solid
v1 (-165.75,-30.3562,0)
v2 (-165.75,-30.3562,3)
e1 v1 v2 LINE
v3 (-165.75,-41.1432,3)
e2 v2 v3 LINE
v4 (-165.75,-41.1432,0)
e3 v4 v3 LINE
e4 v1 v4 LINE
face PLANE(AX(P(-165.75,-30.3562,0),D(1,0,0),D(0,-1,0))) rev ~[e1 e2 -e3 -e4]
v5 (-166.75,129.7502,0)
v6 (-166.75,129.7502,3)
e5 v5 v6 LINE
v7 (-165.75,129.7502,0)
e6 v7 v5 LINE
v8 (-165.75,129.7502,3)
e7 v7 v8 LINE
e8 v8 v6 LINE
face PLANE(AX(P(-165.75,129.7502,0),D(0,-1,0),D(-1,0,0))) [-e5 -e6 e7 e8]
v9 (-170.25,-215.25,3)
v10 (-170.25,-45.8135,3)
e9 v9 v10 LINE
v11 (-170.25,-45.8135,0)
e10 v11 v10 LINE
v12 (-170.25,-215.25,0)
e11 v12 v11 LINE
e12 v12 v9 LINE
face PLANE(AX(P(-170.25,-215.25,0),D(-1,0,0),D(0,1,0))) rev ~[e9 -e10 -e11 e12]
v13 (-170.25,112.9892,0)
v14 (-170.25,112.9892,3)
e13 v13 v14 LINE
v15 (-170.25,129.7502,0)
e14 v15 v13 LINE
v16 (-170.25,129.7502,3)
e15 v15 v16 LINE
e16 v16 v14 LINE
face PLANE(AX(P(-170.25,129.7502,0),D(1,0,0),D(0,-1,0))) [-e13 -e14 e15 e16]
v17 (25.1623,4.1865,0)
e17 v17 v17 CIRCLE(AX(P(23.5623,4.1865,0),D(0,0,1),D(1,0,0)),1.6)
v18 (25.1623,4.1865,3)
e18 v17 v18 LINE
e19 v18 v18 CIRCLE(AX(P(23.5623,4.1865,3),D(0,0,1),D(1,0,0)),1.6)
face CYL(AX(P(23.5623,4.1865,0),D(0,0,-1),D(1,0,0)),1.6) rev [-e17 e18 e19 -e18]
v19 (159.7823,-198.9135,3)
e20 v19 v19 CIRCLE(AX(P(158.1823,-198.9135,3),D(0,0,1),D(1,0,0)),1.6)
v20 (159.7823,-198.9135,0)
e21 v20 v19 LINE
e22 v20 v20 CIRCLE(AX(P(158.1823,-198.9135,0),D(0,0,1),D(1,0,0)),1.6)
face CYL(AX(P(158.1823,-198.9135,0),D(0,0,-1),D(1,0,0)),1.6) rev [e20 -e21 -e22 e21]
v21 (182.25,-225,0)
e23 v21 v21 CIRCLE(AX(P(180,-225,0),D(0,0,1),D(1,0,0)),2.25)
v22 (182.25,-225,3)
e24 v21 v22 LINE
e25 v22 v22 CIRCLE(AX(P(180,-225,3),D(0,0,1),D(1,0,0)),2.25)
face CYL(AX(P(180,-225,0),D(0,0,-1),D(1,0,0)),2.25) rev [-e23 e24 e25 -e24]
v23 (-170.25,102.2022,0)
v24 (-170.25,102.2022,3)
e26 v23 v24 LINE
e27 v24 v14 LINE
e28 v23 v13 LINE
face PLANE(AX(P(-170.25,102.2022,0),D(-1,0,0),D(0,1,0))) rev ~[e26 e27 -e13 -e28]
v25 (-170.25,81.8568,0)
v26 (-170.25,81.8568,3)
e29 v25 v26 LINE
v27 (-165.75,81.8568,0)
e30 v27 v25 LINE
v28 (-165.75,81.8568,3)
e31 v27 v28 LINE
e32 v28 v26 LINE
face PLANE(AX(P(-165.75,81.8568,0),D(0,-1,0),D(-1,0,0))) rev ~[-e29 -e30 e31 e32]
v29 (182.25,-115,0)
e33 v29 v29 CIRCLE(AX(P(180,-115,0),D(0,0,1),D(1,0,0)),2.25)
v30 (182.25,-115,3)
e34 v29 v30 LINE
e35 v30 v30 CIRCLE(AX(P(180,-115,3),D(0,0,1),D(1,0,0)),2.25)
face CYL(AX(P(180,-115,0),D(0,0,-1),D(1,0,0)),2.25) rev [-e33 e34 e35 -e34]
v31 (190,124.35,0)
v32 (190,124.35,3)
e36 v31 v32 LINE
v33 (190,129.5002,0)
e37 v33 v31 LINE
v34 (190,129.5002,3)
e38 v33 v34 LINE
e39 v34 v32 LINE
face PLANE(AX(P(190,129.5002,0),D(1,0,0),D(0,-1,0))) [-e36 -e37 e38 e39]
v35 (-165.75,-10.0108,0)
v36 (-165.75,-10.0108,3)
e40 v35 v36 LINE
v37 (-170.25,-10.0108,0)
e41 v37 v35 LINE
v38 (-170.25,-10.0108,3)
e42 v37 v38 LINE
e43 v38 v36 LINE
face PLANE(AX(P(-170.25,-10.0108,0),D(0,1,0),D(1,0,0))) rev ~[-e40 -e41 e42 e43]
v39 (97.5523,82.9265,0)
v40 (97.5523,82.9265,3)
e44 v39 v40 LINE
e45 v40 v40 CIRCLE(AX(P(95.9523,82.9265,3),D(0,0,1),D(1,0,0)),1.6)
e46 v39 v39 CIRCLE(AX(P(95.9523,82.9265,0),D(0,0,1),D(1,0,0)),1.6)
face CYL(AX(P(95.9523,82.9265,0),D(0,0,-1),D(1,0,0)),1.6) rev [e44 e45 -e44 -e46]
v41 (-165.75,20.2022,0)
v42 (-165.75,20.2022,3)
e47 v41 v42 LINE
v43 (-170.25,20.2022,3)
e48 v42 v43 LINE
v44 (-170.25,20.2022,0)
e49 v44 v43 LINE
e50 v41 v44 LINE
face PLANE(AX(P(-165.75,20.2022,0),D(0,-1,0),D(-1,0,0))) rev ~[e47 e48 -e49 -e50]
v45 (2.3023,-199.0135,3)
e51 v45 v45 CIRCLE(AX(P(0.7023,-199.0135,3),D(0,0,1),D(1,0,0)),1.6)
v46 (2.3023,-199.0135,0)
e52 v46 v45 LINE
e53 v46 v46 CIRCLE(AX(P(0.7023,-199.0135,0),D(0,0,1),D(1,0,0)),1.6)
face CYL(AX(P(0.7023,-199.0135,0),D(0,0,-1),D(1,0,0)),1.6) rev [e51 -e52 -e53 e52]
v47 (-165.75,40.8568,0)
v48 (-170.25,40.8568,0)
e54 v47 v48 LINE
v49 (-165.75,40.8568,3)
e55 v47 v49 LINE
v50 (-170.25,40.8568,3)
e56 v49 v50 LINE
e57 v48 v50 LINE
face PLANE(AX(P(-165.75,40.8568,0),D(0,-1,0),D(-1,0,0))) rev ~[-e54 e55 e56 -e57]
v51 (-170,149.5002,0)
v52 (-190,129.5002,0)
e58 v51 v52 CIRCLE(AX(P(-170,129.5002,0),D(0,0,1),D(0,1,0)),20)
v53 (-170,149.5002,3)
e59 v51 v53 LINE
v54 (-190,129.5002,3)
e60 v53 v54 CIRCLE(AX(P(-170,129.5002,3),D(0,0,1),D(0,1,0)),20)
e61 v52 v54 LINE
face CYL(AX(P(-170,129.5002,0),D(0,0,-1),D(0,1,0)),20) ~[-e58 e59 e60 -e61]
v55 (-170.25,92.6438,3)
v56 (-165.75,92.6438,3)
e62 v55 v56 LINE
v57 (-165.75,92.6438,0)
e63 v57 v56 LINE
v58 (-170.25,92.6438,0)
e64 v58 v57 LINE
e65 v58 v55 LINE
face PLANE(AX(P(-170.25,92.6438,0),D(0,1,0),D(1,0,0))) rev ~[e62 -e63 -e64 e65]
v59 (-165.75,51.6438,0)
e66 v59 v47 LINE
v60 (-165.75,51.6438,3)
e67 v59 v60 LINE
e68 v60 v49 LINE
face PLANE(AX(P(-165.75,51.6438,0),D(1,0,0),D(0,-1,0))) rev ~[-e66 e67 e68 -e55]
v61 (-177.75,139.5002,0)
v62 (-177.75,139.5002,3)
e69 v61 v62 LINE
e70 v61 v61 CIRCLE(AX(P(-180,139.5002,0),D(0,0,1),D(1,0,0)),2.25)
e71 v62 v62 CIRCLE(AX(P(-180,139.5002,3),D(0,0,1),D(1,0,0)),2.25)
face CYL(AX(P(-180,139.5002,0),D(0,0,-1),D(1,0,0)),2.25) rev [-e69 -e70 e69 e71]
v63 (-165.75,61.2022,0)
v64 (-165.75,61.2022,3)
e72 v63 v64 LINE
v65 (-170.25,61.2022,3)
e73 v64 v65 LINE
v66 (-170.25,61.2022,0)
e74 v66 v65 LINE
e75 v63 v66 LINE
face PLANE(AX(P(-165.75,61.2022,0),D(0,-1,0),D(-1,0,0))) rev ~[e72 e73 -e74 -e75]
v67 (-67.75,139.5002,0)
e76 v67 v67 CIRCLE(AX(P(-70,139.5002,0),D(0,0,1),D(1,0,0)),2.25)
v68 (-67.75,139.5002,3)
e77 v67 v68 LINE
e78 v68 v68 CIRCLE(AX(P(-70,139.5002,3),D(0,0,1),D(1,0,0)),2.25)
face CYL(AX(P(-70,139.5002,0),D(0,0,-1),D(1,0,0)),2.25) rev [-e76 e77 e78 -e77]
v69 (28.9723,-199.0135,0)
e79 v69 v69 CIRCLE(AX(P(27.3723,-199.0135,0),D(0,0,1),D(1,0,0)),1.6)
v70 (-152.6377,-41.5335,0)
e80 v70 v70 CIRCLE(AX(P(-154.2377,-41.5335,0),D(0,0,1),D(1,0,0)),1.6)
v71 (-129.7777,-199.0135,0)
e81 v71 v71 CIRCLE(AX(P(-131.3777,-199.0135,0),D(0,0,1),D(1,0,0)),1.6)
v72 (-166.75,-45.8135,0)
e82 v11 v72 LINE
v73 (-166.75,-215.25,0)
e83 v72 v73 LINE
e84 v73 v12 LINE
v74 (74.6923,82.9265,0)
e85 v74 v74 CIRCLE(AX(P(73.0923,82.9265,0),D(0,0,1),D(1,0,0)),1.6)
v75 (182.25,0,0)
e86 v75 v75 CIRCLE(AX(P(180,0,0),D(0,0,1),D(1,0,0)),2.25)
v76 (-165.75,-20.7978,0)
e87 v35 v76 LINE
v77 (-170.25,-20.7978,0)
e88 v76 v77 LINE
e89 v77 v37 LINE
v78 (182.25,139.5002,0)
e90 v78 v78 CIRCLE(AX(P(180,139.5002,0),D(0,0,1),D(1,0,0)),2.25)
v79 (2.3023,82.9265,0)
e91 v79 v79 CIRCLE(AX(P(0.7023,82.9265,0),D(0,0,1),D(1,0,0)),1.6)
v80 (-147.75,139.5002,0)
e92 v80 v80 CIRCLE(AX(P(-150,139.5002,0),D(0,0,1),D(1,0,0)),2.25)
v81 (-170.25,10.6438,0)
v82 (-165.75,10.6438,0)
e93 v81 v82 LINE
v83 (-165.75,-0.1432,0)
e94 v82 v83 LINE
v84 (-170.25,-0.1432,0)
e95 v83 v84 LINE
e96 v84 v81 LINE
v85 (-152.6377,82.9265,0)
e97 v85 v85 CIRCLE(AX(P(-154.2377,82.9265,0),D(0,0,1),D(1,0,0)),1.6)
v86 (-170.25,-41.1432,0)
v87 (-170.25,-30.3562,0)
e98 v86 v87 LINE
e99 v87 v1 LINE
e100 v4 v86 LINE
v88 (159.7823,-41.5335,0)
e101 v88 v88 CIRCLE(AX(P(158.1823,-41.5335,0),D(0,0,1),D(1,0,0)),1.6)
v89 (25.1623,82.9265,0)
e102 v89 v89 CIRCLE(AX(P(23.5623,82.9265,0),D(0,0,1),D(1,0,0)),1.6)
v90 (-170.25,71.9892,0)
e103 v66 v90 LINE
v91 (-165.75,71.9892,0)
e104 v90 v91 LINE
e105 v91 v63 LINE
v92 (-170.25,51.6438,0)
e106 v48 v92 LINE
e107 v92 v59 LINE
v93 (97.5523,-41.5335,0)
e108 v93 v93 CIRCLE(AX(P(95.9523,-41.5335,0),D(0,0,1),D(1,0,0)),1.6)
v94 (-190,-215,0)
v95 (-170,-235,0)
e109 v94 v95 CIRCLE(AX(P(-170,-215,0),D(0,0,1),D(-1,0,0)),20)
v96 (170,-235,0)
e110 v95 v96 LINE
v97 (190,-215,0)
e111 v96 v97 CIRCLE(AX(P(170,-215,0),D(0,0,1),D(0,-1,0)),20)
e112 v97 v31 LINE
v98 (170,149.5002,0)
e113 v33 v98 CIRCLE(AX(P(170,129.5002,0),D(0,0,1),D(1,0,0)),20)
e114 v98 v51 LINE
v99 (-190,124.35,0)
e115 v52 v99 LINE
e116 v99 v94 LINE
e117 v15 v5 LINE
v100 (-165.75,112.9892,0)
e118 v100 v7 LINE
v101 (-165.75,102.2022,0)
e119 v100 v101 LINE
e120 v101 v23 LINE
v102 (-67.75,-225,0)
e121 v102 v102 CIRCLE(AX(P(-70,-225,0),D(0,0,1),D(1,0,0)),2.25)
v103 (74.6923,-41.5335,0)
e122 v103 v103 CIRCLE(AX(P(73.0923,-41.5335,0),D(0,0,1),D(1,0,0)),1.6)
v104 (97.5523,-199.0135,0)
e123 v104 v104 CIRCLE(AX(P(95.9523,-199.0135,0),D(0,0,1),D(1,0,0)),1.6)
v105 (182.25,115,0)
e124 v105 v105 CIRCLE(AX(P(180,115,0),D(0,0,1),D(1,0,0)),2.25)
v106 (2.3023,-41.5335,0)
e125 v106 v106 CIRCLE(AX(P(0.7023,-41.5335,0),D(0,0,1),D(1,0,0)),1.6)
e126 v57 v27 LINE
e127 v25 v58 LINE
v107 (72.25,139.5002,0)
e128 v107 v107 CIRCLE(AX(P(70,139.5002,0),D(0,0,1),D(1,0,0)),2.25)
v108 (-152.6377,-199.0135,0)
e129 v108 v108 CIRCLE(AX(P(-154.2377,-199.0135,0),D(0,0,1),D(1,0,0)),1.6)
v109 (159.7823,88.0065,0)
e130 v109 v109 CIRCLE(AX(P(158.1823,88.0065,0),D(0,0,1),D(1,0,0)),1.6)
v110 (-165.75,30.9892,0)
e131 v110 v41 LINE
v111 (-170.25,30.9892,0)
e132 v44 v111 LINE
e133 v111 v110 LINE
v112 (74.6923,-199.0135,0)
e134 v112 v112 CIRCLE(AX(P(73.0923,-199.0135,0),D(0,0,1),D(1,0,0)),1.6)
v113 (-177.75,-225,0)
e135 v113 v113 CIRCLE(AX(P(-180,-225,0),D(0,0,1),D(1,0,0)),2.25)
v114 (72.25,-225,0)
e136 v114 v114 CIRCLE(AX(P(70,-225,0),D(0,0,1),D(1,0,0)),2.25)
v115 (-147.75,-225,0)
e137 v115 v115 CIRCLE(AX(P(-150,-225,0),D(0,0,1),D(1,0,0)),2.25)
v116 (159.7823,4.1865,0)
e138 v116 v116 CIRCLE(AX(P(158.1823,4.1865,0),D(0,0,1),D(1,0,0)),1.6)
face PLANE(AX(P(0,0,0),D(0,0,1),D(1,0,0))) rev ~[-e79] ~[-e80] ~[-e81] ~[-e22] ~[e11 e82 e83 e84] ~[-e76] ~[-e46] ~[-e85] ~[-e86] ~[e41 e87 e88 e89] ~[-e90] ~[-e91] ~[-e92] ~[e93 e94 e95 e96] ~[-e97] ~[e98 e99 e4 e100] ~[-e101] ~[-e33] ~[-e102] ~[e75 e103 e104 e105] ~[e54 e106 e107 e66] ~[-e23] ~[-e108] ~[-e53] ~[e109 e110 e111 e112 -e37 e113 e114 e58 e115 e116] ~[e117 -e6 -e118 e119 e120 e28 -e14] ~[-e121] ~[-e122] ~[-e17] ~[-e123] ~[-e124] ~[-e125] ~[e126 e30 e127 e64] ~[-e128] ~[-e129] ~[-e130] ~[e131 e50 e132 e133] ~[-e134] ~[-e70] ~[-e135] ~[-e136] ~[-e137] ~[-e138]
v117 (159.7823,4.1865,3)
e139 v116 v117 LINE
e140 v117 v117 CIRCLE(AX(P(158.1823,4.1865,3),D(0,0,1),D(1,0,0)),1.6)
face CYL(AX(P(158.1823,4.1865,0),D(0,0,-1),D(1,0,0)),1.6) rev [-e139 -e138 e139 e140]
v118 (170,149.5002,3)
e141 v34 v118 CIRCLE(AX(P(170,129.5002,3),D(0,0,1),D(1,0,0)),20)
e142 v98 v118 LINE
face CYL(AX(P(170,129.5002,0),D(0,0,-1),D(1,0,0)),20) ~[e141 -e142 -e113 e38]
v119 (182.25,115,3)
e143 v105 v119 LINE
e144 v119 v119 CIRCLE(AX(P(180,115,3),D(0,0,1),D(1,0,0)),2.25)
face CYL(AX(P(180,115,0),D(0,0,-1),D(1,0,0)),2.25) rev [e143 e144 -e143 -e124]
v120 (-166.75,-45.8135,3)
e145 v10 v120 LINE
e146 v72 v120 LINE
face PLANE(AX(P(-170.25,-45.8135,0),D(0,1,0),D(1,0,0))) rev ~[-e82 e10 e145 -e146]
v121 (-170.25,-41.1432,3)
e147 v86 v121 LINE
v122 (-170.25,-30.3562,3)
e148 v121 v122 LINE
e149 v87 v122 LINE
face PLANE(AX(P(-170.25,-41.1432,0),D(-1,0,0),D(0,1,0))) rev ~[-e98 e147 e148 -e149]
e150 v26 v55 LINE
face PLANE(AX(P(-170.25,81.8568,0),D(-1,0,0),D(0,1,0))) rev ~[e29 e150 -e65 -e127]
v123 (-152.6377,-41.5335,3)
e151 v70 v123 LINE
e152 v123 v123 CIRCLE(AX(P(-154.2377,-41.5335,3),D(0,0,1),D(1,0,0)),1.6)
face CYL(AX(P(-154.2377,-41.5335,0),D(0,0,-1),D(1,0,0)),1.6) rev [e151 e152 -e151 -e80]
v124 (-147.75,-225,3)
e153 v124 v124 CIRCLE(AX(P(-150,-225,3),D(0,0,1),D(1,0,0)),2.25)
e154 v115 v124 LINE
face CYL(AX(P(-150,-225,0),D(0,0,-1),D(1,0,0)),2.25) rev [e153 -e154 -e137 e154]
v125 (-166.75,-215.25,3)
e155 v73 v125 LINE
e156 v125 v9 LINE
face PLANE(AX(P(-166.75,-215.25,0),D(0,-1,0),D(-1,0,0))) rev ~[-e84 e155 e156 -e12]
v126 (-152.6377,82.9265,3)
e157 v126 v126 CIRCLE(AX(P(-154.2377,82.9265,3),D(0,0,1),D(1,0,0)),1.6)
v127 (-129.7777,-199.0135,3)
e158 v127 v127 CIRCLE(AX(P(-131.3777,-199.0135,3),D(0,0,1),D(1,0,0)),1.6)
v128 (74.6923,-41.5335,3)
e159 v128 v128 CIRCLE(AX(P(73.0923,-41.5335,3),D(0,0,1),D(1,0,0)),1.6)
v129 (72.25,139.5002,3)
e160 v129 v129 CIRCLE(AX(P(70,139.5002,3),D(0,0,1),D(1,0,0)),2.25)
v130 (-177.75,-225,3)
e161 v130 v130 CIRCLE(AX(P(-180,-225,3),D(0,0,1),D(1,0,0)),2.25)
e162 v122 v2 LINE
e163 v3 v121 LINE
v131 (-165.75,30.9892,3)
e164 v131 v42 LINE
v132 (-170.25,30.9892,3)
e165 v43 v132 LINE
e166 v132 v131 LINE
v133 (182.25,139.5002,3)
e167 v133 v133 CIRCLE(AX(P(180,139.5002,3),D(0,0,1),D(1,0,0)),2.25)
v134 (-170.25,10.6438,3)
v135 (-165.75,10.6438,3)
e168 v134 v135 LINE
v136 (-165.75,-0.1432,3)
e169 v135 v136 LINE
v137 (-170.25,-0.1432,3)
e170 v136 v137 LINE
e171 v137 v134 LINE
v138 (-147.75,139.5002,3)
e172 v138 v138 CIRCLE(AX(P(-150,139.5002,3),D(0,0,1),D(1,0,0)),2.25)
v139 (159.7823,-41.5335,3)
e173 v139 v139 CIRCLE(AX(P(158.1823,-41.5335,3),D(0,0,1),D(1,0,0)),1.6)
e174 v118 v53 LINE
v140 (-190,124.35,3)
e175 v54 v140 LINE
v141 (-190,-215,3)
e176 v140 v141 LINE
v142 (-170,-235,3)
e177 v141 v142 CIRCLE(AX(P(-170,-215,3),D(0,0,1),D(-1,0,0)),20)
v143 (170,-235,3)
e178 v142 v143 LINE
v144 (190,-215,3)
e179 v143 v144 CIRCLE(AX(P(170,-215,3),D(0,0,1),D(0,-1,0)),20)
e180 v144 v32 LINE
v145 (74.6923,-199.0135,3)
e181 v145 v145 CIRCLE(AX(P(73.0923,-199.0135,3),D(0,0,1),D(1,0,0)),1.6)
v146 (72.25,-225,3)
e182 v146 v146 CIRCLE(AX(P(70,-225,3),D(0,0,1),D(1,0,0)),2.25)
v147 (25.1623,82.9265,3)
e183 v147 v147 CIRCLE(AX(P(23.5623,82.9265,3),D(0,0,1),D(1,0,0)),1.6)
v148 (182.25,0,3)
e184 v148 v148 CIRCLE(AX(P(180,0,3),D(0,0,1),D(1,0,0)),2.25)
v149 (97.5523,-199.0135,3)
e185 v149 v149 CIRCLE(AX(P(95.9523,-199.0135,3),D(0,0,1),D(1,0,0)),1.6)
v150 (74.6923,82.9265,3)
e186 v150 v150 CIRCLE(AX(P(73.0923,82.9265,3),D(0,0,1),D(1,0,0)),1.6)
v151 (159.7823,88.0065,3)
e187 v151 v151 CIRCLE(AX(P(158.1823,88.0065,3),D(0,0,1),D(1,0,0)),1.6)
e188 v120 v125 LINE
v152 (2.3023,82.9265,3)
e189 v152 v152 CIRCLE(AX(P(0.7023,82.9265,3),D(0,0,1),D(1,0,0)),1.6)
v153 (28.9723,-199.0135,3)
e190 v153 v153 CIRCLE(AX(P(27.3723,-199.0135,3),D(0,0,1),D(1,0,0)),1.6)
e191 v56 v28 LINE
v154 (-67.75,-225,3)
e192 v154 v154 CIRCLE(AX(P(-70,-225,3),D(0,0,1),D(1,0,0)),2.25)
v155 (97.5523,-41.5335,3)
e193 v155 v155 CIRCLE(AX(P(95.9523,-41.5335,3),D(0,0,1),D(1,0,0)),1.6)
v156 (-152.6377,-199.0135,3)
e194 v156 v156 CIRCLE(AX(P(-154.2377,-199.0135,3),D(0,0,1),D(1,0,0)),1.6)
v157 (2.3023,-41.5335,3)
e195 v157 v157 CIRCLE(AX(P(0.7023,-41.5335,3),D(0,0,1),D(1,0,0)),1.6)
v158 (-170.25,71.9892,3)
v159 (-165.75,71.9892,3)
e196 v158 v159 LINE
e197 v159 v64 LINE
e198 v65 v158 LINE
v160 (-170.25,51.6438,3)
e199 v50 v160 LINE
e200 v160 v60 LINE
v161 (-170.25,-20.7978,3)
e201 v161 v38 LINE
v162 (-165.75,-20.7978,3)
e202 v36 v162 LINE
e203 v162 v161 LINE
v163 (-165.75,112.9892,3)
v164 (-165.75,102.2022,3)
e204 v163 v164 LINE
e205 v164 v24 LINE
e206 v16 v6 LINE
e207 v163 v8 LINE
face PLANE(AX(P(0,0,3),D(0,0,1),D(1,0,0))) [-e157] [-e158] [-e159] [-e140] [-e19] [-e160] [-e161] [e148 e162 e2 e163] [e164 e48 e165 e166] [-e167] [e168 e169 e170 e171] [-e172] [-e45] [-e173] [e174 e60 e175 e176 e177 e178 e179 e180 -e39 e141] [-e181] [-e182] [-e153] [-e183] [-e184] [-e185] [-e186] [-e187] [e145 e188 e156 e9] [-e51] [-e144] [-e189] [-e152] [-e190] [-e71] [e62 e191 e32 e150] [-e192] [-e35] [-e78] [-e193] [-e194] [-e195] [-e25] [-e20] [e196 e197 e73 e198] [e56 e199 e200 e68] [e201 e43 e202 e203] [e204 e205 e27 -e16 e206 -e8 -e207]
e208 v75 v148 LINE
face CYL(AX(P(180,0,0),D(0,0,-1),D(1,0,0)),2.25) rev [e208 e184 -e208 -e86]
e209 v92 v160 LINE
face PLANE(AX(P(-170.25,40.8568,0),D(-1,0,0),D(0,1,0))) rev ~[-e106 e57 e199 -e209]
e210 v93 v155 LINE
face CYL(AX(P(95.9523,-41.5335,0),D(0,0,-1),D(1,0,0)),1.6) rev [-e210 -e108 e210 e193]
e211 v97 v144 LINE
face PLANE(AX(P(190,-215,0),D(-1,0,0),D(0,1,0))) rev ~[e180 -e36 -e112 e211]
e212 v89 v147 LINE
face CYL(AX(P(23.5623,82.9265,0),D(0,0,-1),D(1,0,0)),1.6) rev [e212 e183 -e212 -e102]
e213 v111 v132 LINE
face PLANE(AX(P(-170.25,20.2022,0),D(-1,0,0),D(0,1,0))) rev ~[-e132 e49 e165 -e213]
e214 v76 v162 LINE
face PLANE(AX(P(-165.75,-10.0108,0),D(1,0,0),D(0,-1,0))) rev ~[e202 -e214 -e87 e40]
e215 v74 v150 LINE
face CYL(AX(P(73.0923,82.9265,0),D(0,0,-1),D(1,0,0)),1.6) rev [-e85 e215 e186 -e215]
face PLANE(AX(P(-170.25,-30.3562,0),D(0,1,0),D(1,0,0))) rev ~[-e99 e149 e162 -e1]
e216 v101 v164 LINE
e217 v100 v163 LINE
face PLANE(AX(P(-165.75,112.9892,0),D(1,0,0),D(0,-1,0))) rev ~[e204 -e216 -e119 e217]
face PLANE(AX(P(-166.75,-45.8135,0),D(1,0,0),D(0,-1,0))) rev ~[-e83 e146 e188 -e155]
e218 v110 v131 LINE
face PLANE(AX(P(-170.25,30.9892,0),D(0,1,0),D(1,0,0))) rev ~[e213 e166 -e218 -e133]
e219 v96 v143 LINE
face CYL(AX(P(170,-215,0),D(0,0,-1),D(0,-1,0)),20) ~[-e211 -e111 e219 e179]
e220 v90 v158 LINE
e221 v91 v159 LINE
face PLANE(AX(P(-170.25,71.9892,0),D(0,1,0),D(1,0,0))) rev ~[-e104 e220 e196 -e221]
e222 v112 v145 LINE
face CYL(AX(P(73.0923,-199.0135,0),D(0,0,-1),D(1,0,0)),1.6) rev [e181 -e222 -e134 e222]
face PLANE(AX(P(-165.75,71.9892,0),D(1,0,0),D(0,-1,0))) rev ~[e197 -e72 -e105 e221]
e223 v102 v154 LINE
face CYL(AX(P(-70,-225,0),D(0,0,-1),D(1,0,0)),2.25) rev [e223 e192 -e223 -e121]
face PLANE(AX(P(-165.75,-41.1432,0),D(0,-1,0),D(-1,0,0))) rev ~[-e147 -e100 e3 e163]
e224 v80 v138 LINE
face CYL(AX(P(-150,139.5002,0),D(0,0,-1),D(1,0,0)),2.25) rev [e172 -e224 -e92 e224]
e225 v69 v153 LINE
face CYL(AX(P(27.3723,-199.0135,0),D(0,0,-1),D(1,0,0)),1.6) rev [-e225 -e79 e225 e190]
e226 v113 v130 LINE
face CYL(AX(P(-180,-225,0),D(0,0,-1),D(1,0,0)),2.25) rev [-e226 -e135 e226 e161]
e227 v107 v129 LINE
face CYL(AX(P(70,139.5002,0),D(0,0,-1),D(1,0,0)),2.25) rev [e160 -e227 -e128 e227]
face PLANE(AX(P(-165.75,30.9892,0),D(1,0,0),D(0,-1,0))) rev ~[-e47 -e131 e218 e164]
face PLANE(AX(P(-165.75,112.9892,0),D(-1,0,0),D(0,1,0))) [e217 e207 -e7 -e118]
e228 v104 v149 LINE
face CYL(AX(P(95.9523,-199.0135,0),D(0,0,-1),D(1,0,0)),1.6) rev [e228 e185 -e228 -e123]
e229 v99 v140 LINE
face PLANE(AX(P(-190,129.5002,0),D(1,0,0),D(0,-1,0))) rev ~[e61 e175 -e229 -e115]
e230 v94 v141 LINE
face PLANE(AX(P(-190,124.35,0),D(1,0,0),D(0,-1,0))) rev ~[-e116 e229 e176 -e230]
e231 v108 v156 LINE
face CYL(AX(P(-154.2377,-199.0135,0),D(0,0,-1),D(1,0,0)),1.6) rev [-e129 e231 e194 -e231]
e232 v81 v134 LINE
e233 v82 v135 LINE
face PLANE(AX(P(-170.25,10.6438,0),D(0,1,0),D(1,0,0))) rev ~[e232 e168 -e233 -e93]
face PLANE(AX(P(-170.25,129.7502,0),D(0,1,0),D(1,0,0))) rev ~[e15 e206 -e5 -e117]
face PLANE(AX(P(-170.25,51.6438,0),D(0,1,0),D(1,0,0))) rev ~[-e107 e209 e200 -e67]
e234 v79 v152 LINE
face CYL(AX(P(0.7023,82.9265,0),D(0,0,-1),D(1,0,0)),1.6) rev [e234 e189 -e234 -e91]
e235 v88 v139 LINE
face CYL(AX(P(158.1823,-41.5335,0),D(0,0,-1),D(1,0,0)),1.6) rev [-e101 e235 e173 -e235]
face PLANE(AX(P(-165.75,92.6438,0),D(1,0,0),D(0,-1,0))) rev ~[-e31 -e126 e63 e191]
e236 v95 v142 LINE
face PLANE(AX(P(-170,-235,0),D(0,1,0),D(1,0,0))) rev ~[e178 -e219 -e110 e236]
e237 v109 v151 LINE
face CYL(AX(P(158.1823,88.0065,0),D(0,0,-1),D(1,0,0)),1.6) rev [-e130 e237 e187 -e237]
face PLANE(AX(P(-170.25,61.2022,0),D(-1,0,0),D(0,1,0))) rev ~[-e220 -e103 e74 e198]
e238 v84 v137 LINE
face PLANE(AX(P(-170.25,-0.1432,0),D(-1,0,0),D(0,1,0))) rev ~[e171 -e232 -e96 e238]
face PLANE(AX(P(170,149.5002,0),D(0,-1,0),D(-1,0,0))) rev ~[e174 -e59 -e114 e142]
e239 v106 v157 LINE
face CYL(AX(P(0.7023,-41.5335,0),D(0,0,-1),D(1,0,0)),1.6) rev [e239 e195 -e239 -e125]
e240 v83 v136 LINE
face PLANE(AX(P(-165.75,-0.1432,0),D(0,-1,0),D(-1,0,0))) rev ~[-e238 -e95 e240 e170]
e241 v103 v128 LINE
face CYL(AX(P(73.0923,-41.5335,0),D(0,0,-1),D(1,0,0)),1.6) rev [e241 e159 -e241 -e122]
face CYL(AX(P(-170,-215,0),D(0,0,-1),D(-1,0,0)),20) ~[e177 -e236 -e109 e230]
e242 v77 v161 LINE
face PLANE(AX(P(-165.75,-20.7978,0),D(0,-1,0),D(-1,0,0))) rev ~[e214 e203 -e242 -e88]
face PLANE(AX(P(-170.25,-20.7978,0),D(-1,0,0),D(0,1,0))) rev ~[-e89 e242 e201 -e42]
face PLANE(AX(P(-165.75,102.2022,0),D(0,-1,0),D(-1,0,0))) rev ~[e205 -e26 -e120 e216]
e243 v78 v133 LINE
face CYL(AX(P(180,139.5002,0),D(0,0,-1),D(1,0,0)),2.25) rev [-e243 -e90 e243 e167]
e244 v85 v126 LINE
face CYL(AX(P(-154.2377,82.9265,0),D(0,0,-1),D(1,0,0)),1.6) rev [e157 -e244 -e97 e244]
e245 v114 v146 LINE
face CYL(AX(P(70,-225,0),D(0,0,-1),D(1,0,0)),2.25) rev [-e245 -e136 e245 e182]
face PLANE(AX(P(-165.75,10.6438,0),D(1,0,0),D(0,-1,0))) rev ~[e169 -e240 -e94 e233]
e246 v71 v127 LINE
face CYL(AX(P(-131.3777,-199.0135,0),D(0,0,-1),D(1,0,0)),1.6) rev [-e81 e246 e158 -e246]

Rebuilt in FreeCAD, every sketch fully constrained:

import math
import FreeCAD as App
import Part
import Sketcher

doc = App.newDocument("Part")
params = doc.addObject("Spreadsheet::Sheet", "Params")
for row, (alias, value) in enumerate([
    ("sketch1_radius", "20 mm"),
    ("sketch1_diameter", "4.5 mm"),
    ("sketch1_diameter2", "3.2 mm"),
    ("sketch1_width", "340 mm"),
    ("sketch1_width2", "3.5 mm"),
    ("pad1_length", "3 mm"),
], start=1):
    params.set(f"A{row}", alias)
    params.set(f"B{row}", "=" + value)
    params.setAlias(f"B{row}", alias)

body = doc.addObject("PartDesign::Body", "Body")

sketch1 = doc.addObject("Sketcher::SketchObject", "Sketch")
body.addObject(sketch1)
sketch1.AttachmentSupport = (doc.XY_Plane, [""])
sketch1.MapMode = "FlatFace"
sketch1.addGeometry(Part.ArcOfCircle(Part.Circle(App.Vector(170, 129.5, 0), App.Vector(0, 0, 1), 20), math.radians(0), math.radians(90)), False)
sketch1.addGeometry(Part.LineSegment(App.Vector(170, 149.5, 0), App.Vector(-170, 149.5, 0)), False)
sketch1.addGeometry(Part.ArcOfCircle(Part.Circle(App.Vector(-170, 129.5, 0), App.Vector(0, 0, 1), 20), math.radians(90), math.radians(180)), False)
sketch1.addGeometry(Part.LineSegment(App.Vector(-190, 129.5, 0), App.Vector(-190, -215, 0)), False)
sketch1.addGeometry(Part.ArcOfCircle(Part.Circle(App.Vector(-170, -215, 0), App.Vector(0, 0, 1), 20), math.radians(180), math.radians(270)), False)
sketch1.addGeometry(Part.LineSegment(App.Vector(-170, -235, 0), App.Vector(170, -235, 0)), False)
sketch1.addGeometry(Part.ArcOfCircle(Part.Circle(App.Vector(170, -215, 0), App.Vector(0, 0, 1), 20), math.radians(-90), math.radians(0)), False)
sketch1.addGeometry(Part.LineSegment(App.Vector(190, -215, 0), App.Vector(190, 129.5, 0)), False)
sketch1.addGeometry(Part.Circle(App.Vector(-180, -225, 0), App.Vector(0, 0, 1), 2.2), False)
sketch1.addGeometry(Part.Circle(App.Vector(-150, -225, 0), App.Vector(0, 0, 1), 2.2), False)
sketch1.addGeometry(Part.Circle(App.Vector(-154.2, -199, 0), App.Vector(0, 0, 1), 1.6), False)
sketch1.addGeometry(Part.Circle(App.Vector(-131.4, -199, 0), App.Vector(0, 0, 1), 1.6), False)
sketch1.addGeometry(Part.Circle(App.Vector(-70, -225, 0), App.Vector(0, 0, 1), 2.2), False)
sketch1.addGeometry(Part.LineSegment(App.Vector(-166.8, -215.2, 0), App.Vector(-170.2, -215.2, 0)), False)
sketch1.addGeometry(Part.LineSegment(App.Vector(-170.2, -215.2, 0), App.Vector(-170.2, -45.8, 0)), False)
sketch1.addGeometry(Part.LineSegment(App.Vector(-170.2, -45.8, 0), App.Vector(-166.8, -45.8, 0)), False)
sketch1.addGeometry(Part.LineSegment(App.Vector(-166.8, -45.8, 0), App.Vector(-166.8, -215.2, 0)), False)
sketch1.addGeometry(Part.Circle(App.Vector(0.7, -199, 0), App.Vector(0, 0, 1), 1.6), False)
sketch1.addGeometry(Part.Circle(App.Vector(27.4, -199, 0), App.Vector(0, 0, 1), 1.6), False)
sketch1.addGeometry(Part.Circle(App.Vector(70, -225, 0), App.Vector(0, 0, 1), 2.2), False)
sketch1.addGeometry(Part.Circle(App.Vector(73.1, -199, 0), App.Vector(0, 0, 1), 1.6), False)
sketch1.addGeometry(Part.Circle(App.Vector(96, -199, 0), App.Vector(0, 0, 1), 1.6), False)
sketch1.addGeometry(Part.Circle(App.Vector(180, -225, 0), App.Vector(0, 0, 1), 2.2), False)
sketch1.addGeometry(Part.Circle(App.Vector(158.2, -198.9, 0), App.Vector(0, 0, 1), 1.6), False)
sketch1.addGeometry(Part.Circle(App.Vector(180, -115, 0), App.Vector(0, 0, 1), 2.2), False)
sketch1.addGeometry(Part.LineSegment(App.Vector(-170.2, -41.1, 0), App.Vector(-170.2, -30.4, 0)), False)
sketch1.addGeometry(Part.LineSegment(App.Vector(-170.2, -30.4, 0), App.Vector(-165.8, -30.4, 0)), False)
sketch1.addGeometry(Part.LineSegment(App.Vector(-165.8, -30.4, 0), App.Vector(-165.8, -41.1, 0)), False)
sketch1.addGeometry(Part.LineSegment(App.Vector(-165.8, -41.1, 0), App.Vector(-170.2, -41.1, 0)), False)
sketch1.addGeometry(Part.Circle(App.Vector(-154.2, -41.5, 0), App.Vector(0, 0, 1), 1.6), False)
sketch1.addGeometry(Part.LineSegment(App.Vector(-170.2, -20.8, 0), App.Vector(-170.2, -10, 0)), False)
sketch1.addGeometry(Part.LineSegment(App.Vector(-170.2, -10, 0), App.Vector(-165.8, -10, 0)), False)
sketch1.addGeometry(Part.LineSegment(App.Vector(-165.8, -10, 0), App.Vector(-165.8, -20.8, 0)), False)
sketch1.addGeometry(Part.LineSegment(App.Vector(-165.8, -20.8, 0), App.Vector(-170.2, -20.8, 0)), False)
sketch1.addGeometry(Part.LineSegment(App.Vector(-170.2, -0.1, 0), App.Vector(-170.2, 10.6, 0)), False)
sketch1.addGeometry(Part.LineSegment(App.Vector(-170.2, 10.6, 0), App.Vector(-165.8, 10.6, 0)), False)
sketch1.addGeometry(Part.LineSegment(App.Vector(-165.8, 10.6, 0), App.Vector(-165.8, -0.1, 0)), False)
sketch1.addGeometry(Part.LineSegment(App.Vector(-165.8, -0.1, 0), App.Vector(-170.2, -0.1, 0)), False)
sketch1.addGeometry(Part.LineSegment(App.Vector(-170.2, 20.2, 0), App.Vector(-170.2, 31, 0)), False)
sketch1.addGeometry(Part.LineSegment(App.Vector(-170.2, 31, 0), App.Vector(-165.8, 31, 0)), False)
sketch1.addGeometry(Part.LineSegment(App.Vector(-165.8, 31, 0), App.Vector(-165.8, 20.2, 0)), False)
sketch1.addGeometry(Part.LineSegment(App.Vector(-165.8, 20.2, 0), App.Vector(-170.2, 20.2, 0)), False)
sketch1.addGeometry(Part.LineSegment(App.Vector(-170.2, 40.9, 0), App.Vector(-170.2, 51.6, 0)), False)
sketch1.addGeometry(Part.LineSegment(App.Vector(-170.2, 51.6, 0), App.Vector(-165.8, 51.6, 0)), False)
sketch1.addGeometry(Part.LineSegment(App.Vector(-165.8, 51.6, 0), App.Vector(-165.8, 40.9, 0)), False)
sketch1.addGeometry(Part.LineSegment(App.Vector(-165.8, 40.9, 0), App.Vector(-170.2, 40.9, 0)), False)
sketch1.addGeometry(Part.LineSegment(App.Vector(-170.2, 61.2, 0), App.Vector(-170.2, 72, 0)), False)
sketch1.addGeometry(Part.LineSegment(App.Vector(-170.2, 72, 0), App.Vector(-165.8, 72, 0)), False)
sketch1.addGeometry(Part.LineSegment(App.Vector(-165.8, 72, 0), App.Vector(-165.8, 61.2, 0)), False)
sketch1.addGeometry(Part.LineSegment(App.Vector(-165.8, 61.2, 0), App.Vector(-170.2, 61.2, 0)), False)
sketch1.addGeometry(Part.LineSegment(App.Vector(-170.2, 81.9, 0), App.Vector(-170.2, 92.6, 0)), False)
sketch1.addGeometry(Part.LineSegment(App.Vector(-170.2, 92.6, 0), App.Vector(-165.8, 92.6, 0)), False)
sketch1.addGeometry(Part.LineSegment(App.Vector(-165.8, 92.6, 0), App.Vector(-165.8, 81.9, 0)), False)
sketch1.addGeometry(Part.LineSegment(App.Vector(-165.8, 81.9, 0), App.Vector(-170.2, 81.9, 0)), False)
sketch1.addGeometry(Part.Circle(App.Vector(-154.2, 82.9, 0), App.Vector(0, 0, 1), 1.6), False)
sketch1.addGeometry(Part.LineSegment(App.Vector(-170.2, 102.2, 0), App.Vector(-170.2, 129.8, 0)), False)
sketch1.addGeometry(Part.LineSegment(App.Vector(-170.2, 129.8, 0), App.Vector(-165.8, 129.8, 0)), False)
sketch1.addGeometry(Part.LineSegment(App.Vector(-165.8, 129.8, 0), App.Vector(-165.8, 102.2, 0)), False)
sketch1.addGeometry(Part.LineSegment(App.Vector(-165.8, 102.2, 0), App.Vector(-170.2, 102.2, 0)), False)
sketch1.addGeometry(Part.Circle(App.Vector(-180, 139.5, 0), App.Vector(0, 0, 1), 2.2), False)
sketch1.addGeometry(Part.Circle(App.Vector(-150, 139.5, 0), App.Vector(0, 0, 1), 2.2), False)
sketch1.addGeometry(Part.Circle(App.Vector(-70, 139.5, 0), App.Vector(0, 0, 1), 2.2), False)
sketch1.addGeometry(Part.Circle(App.Vector(0.7, -41.5, 0), App.Vector(0, 0, 1), 1.6), False)
sketch1.addGeometry(Part.Circle(App.Vector(23.6, 4.2, 0), App.Vector(0, 0, 1), 1.6), False)
sketch1.addGeometry(Part.Circle(App.Vector(73.1, -41.5, 0), App.Vector(0, 0, 1), 1.6), False)
sketch1.addGeometry(Part.Circle(App.Vector(96, -41.5, 0), App.Vector(0, 0, 1), 1.6), False)
sketch1.addGeometry(Part.Circle(App.Vector(158.2, -41.5, 0), App.Vector(0, 0, 1), 1.6), False)
sketch1.addGeometry(Part.Circle(App.Vector(158.2, 4.2, 0), App.Vector(0, 0, 1), 1.6), False)
sketch1.addGeometry(Part.Circle(App.Vector(180, 0, 0), App.Vector(0, 0, 1), 2.2), False)
sketch1.addGeometry(Part.Circle(App.Vector(0.7, 82.9, 0), App.Vector(0, 0, 1), 1.6), False)
sketch1.addGeometry(Part.Circle(App.Vector(23.6, 82.9, 0), App.Vector(0, 0, 1), 1.6), False)
sketch1.addGeometry(Part.Circle(App.Vector(73.1, 82.9, 0), App.Vector(0, 0, 1), 1.6), False)
sketch1.addGeometry(Part.Circle(App.Vector(70, 139.5, 0), App.Vector(0, 0, 1), 2.2), False)
sketch1.addGeometry(Part.Circle(App.Vector(96, 82.9, 0), App.Vector(0, 0, 1), 1.6), False)
sketch1.addGeometry(Part.Circle(App.Vector(158.2, 88, 0), App.Vector(0, 0, 1), 1.6), False)
sketch1.addGeometry(Part.Circle(App.Vector(180, 115, 0), App.Vector(0, 0, 1), 2.2), False)
sketch1.addGeometry(Part.Circle(App.Vector(180, 139.5, 0), App.Vector(0, 0, 1), 2.2), False)
sketch1.addConstraint(Sketcher.Constraint("Tangent", 0, 2, 1, 1))
sketch1.addConstraint(Sketcher.Constraint("Tangent", 1, 2, 2, 1))
sketch1.addConstraint(Sketcher.Constraint("Tangent", 2, 2, 3, 1))
sketch1.addConstraint(Sketcher.Constraint("Tangent", 3, 2, 4, 1))
sketch1.addConstraint(Sketcher.Constraint("Tangent", 4, 2, 5, 1))
sketch1.addConstraint(Sketcher.Constraint("Tangent", 5, 2, 6, 1))
sketch1.addConstraint(Sketcher.Constraint("Tangent", 6, 2, 7, 1))
sketch1.addConstraint(Sketcher.Constraint("Tangent", 7, 2, 0, 1))
sketch1.addConstraint(Sketcher.Constraint("Coincident", 13, 2, 14, 1))
sketch1.addConstraint(Sketcher.Constraint("Coincident", 14, 2, 15, 1))
sketch1.addConstraint(Sketcher.Constraint("Coincident", 15, 2, 16, 1))
sketch1.addConstraint(Sketcher.Constraint("Coincident", 16, 2, 13, 1))
sketch1.addConstraint(Sketcher.Constraint("Coincident", 25, 2, 26, 1))
sketch1.addConstraint(Sketcher.Constraint("Coincident", 26, 2, 27, 1))
sketch1.addConstraint(Sketcher.Constraint("Coincident", 27, 2, 28, 1))
sketch1.addConstraint(Sketcher.Constraint("Coincident", 28, 2, 25, 1))
sketch1.addConstraint(Sketcher.Constraint("Coincident", 30, 2, 31, 1))
sketch1.addConstraint(Sketcher.Constraint("Coincident", 31, 2, 32, 1))
sketch1.addConstraint(Sketcher.Constraint("Coincident", 32, 2, 33, 1))
sketch1.addConstraint(Sketcher.Constraint("Coincident", 33, 2, 30, 1))
sketch1.addConstraint(Sketcher.Constraint("Coincident", 34, 2, 35, 1))
sketch1.addConstraint(Sketcher.Constraint("Coincident", 35, 2, 36, 1))
sketch1.addConstraint(Sketcher.Constraint("Coincident", 36, 2, 37, 1))
sketch1.addConstraint(Sketcher.Constraint("Coincident", 37, 2, 34, 1))
sketch1.addConstraint(Sketcher.Constraint("Coincident", 38, 2, 39, 1))
sketch1.addConstraint(Sketcher.Constraint("Coincident", 39, 2, 40, 1))
sketch1.addConstraint(Sketcher.Constraint("Coincident", 40, 2, 41, 1))
sketch1.addConstraint(Sketcher.Constraint("Coincident", 41, 2, 38, 1))
sketch1.addConstraint(Sketcher.Constraint("Coincident", 42, 2, 43, 1))
sketch1.addConstraint(Sketcher.Constraint("Coincident", 43, 2, 44, 1))
sketch1.addConstraint(Sketcher.Constraint("Coincident", 44, 2, 45, 1))
sketch1.addConstraint(Sketcher.Constraint("Coincident", 45, 2, 42, 1))
sketch1.addConstraint(Sketcher.Constraint("Coincident", 46, 2, 47, 1))
sketch1.addConstraint(Sketcher.Constraint("Coincident", 47, 2, 48, 1))
sketch1.addConstraint(Sketcher.Constraint("Coincident", 48, 2, 49, 1))
sketch1.addConstraint(Sketcher.Constraint("Coincident", 49, 2, 46, 1))
sketch1.addConstraint(Sketcher.Constraint("Coincident", 50, 2, 51, 1))
sketch1.addConstraint(Sketcher.Constraint("Coincident", 51, 2, 52, 1))
sketch1.addConstraint(Sketcher.Constraint("Coincident", 52, 2, 53, 1))
sketch1.addConstraint(Sketcher.Constraint("Coincident", 53, 2, 50, 1))
sketch1.addConstraint(Sketcher.Constraint("Coincident", 55, 2, 56, 1))
sketch1.addConstraint(Sketcher.Constraint("Coincident", 56, 2, 57, 1))
sketch1.addConstraint(Sketcher.Constraint("Coincident", 57, 2, 58, 1))
sketch1.addConstraint(Sketcher.Constraint("Coincident", 58, 2, 55, 1))
sketch1.addConstraint(Sketcher.Constraint("Horizontal", 1))
sketch1.addConstraint(Sketcher.Constraint("Vertical", 3))
sketch1.addConstraint(Sketcher.Constraint("Horizontal", 5))
sketch1.addConstraint(Sketcher.Constraint("Vertical", 7))
sketch1.addConstraint(Sketcher.Constraint("Horizontal", 13))
sketch1.addConstraint(Sketcher.Constraint("Vertical", 14))
sketch1.addConstraint(Sketcher.Constraint("Horizontal", 15))
sketch1.addConstraint(Sketcher.Constraint("Vertical", 16))
sketch1.addConstraint(Sketcher.Constraint("Vertical", 25))
sketch1.addConstraint(Sketcher.Constraint("Horizontal", 26))
sketch1.addConstraint(Sketcher.Constraint("Vertical", 27))
sketch1.addConstraint(Sketcher.Constraint("Horizontal", 28))
sketch1.addConstraint(Sketcher.Constraint("Vertical", 30))
sketch1.addConstraint(Sketcher.Constraint("Horizontal", 31))
sketch1.addConstraint(Sketcher.Constraint("Vertical", 32))
sketch1.addConstraint(Sketcher.Constraint("Horizontal", 33))
sketch1.addConstraint(Sketcher.Constraint("Vertical", 34))
sketch1.addConstraint(Sketcher.Constraint("Horizontal", 35))
sketch1.addConstraint(Sketcher.Constraint("Vertical", 36))
sketch1.addConstraint(Sketcher.Constraint("Horizontal", 37))
sketch1.addConstraint(Sketcher.Constraint("Vertical", 38))
sketch1.addConstraint(Sketcher.Constraint("Horizontal", 39))
sketch1.addConstraint(Sketcher.Constraint("Vertical", 40))
sketch1.addConstraint(Sketcher.Constraint("Horizontal", 41))
sketch1.addConstraint(Sketcher.Constraint("Vertical", 42))
sketch1.addConstraint(Sketcher.Constraint("Horizontal", 43))
sketch1.addConstraint(Sketcher.Constraint("Vertical", 44))
sketch1.addConstraint(Sketcher.Constraint("Horizontal", 45))
sketch1.addConstraint(Sketcher.Constraint("Vertical", 46))
sketch1.addConstraint(Sketcher.Constraint("Horizontal", 47))
sketch1.addConstraint(Sketcher.Constraint("Vertical", 48))
sketch1.addConstraint(Sketcher.Constraint("Horizontal", 49))
sketch1.addConstraint(Sketcher.Constraint("Vertical", 50))
sketch1.addConstraint(Sketcher.Constraint("Horizontal", 51))
sketch1.addConstraint(Sketcher.Constraint("Vertical", 52))
sketch1.addConstraint(Sketcher.Constraint("Horizontal", 53))
sketch1.addConstraint(Sketcher.Constraint("Vertical", 55))
sketch1.addConstraint(Sketcher.Constraint("Horizontal", 56))
sketch1.addConstraint(Sketcher.Constraint("Vertical", 57))
sketch1.addConstraint(Sketcher.Constraint("Horizontal", 58))
sketch1.addConstraint(Sketcher.Constraint("Equal", 0, 2))
sketch1.addConstraint(Sketcher.Constraint("Equal", 2, 4))
sketch1.addConstraint(Sketcher.Constraint("Equal", 4, 6))
sketch1.addConstraint(Sketcher.Constraint("Equal", 8, 9))
sketch1.addConstraint(Sketcher.Constraint("Equal", 10, 11))
sketch1.addConstraint(Sketcher.Constraint("Equal", 9, 12))
sketch1.addConstraint(Sketcher.Constraint("Equal", 11, 17))
sketch1.addConstraint(Sketcher.Constraint("Equal", 17, 18))
sketch1.addConstraint(Sketcher.Constraint("Equal", 12, 19))
sketch1.addConstraint(Sketcher.Constraint("Equal", 18, 20))
sketch1.addConstraint(Sketcher.Constraint("Equal", 20, 21))
sketch1.addConstraint(Sketcher.Constraint("Equal", 19, 22))
sketch1.addConstraint(Sketcher.Constraint("Equal", 21, 23))
sketch1.addConstraint(Sketcher.Constraint("Equal", 22, 24))
sketch1.addConstraint(Sketcher.Constraint("Equal", 23, 29))
sketch1.addConstraint(Sketcher.Constraint("Equal", 29, 54))
sketch1.addConstraint(Sketcher.Constraint("Equal", 24, 59))
sketch1.addConstraint(Sketcher.Constraint("Equal", 59, 60))
sketch1.addConstraint(Sketcher.Constraint("Equal", 60, 61))
sketch1.addConstraint(Sketcher.Constraint("Equal", 54, 62))
sketch1.addConstraint(Sketcher.Constraint("Equal", 62, 63))
sketch1.addConstraint(Sketcher.Constraint("Equal", 63, 64))
sketch1.addConstraint(Sketcher.Constraint("Equal", 64, 65))
sketch1.addConstraint(Sketcher.Constraint("Equal", 65, 66))
sketch1.addConstraint(Sketcher.Constraint("Equal", 66, 67))
sketch1.addConstraint(Sketcher.Constraint("Equal", 61, 68))
sketch1.addConstraint(Sketcher.Constraint("Equal", 67, 69))
sketch1.addConstraint(Sketcher.Constraint("Equal", 69, 70))
sketch1.addConstraint(Sketcher.Constraint("Equal", 70, 71))
sketch1.addConstraint(Sketcher.Constraint("Equal", 68, 72))
sketch1.addConstraint(Sketcher.Constraint("Equal", 71, 73))
sketch1.addConstraint(Sketcher.Constraint("Equal", 73, 74))
sketch1.addConstraint(Sketcher.Constraint("Equal", 72, 75))
sketch1.addConstraint(Sketcher.Constraint("Equal", 75, 76))
sketch1.addConstraint(Sketcher.Constraint("Symmetric", 12, 3, 19, 3, -2))
sketch1.addConstraint(Sketcher.Constraint("Symmetric", 8, 3, 22, 3, -2))
sketch1.addConstraint(Sketcher.Constraint("Symmetric", 61, 3, 72, 3, -2))
sketch1.addConstraint(Sketcher.Constraint("Symmetric", 59, 3, 76, 3, -2))
sketch1.addConstraint(Sketcher.Constraint("Symmetric", 24, 3, 75, 3, -1))
sketch1.addConstraint(Sketcher.Constraint("PointOnObject", 68, 3, -1))
sketch1.addConstraint(Sketcher.Constraint("Horizontal", 8, 3, 9, 3))
sketch1.addConstraint(Sketcher.Constraint("Horizontal", 10, 3, 11, 3))
sketch1.addConstraint(Sketcher.Constraint("Horizontal", 9, 3, 12, 3))
sketch1.addConstraint(Sketcher.Constraint("Horizontal", 11, 3, 17, 3))
sketch1.addConstraint(Sketcher.Constraint("Horizontal", 17, 3, 18, 3))
sketch1.addConstraint(Sketcher.Constraint("Horizontal", 18, 3, 20, 3))
sketch1.addConstraint(Sketcher.Constraint("Horizontal", 20, 3, 21, 3))
sketch1.addConstraint(Sketcher.Constraint("Horizontal", 59, 3, 60, 3))
sketch1.addConstraint(Sketcher.Constraint("Horizontal", 60, 3, 61, 3))
sketch1.addConstraint(Sketcher.Constraint("Horizontal", 29, 3, 62, 3))
sketch1.addConstraint(Sketcher.Constraint("Horizontal", 62, 3, 64, 3))
sketch1.addConstraint(Sketcher.Constraint("Horizontal", 64, 3, 65, 3))
sketch1.addConstraint(Sketcher.Constraint("Horizontal", 65, 3, 66, 3))
sketch1.addConstraint(Sketcher.Constraint("Horizontal", 63, 3, 67, 3))
sketch1.addConstraint(Sketcher.Constraint("Horizontal", 54, 3, 69, 3))
sketch1.addConstraint(Sketcher.Constraint("Horizontal", 69, 3, 70, 3))
sketch1.addConstraint(Sketcher.Constraint("Horizontal", 70, 3, 71, 3))
sketch1.addConstraint(Sketcher.Constraint("Horizontal", 71, 3, 73, 3))
sketch1.addConstraint(Sketcher.Constraint("Vertical", 22, 3, 24, 3))
sketch1.addConstraint(Sketcher.Constraint("Vertical", 10, 3, 29, 3))
sketch1.addConstraint(Sketcher.Constraint("Vertical", 29, 3, 54, 3))
sketch1.addConstraint(Sketcher.Constraint("Vertical", 8, 3, 59, 3))
sketch1.addConstraint(Sketcher.Constraint("Vertical", 9, 3, 60, 3))
sketch1.addConstraint(Sketcher.Constraint("Vertical", 12, 3, 61, 3))
sketch1.addConstraint(Sketcher.Constraint("Vertical", 17, 3, 62, 3))
sketch1.addConstraint(Sketcher.Constraint("Vertical", 20, 3, 64, 3))
sketch1.addConstraint(Sketcher.Constraint("Vertical", 21, 3, 65, 3))
sketch1.addConstraint(Sketcher.Constraint("Vertical", 23, 3, 66, 3))
sketch1.addConstraint(Sketcher.Constraint("Vertical", 66, 3, 67, 3))
sketch1.addConstraint(Sketcher.Constraint("Vertical", 24, 3, 68, 3))
sketch1.addConstraint(Sketcher.Constraint("Vertical", 62, 3, 69, 3))
sketch1.addConstraint(Sketcher.Constraint("Vertical", 63, 3, 70, 3))
sketch1.addConstraint(Sketcher.Constraint("Vertical", 64, 3, 71, 3))
sketch1.addConstraint(Sketcher.Constraint("Vertical", 65, 3, 73, 3))
sketch1.addConstraint(Sketcher.Constraint("Vertical", 67, 3, 74, 3))
sketch1.addConstraint(Sketcher.Constraint("Vertical", 14, 2, 25, 2))
sketch1.addConstraint(Sketcher.Constraint("Vertical", 28, 2, 30, 2))
sketch1.addConstraint(Sketcher.Constraint("Vertical", 27, 2, 31, 2))
sketch1.addConstraint(Sketcher.Constraint("Vertical", 33, 2, 34, 2))
sketch1.addConstraint(Sketcher.Constraint("Vertical", 32, 2, 35, 2))
sketch1.addConstraint(Sketcher.Constraint("Vertical", 37, 2, 38, 2))
sketch1.addConstraint(Sketcher.Constraint("Vertical", 36, 2, 39, 2))
sketch1.addConstraint(Sketcher.Constraint("Vertical", 41, 2, 42, 2))
sketch1.addConstraint(Sketcher.Constraint("Vertical", 40, 2, 43, 2))
sketch1.addConstraint(Sketcher.Constraint("Vertical", 45, 2, 46, 2))
sketch1.addConstraint(Sketcher.Constraint("Vertical", 44, 2, 47, 2))
sketch1.addConstraint(Sketcher.Constraint("Vertical", 49, 2, 50, 2))
sketch1.addConstraint(Sketcher.Constraint("Vertical", 48, 2, 51, 2))
sketch1.addConstraint(Sketcher.Constraint("Vertical", 53, 2, 55, 2))
sketch1.addConstraint(Sketcher.Constraint("Vertical", 52, 2, 56, 2))
sketch1.addConstraint(Sketcher.Constraint("Equal", 27, 30))
sketch1.addConstraint(Sketcher.Constraint("Equal", 32, 34))
sketch1.addConstraint(Sketcher.Constraint("Equal", 36, 38))
sketch1.addConstraint(Sketcher.Constraint("Equal", 40, 42))
sketch1.addConstraint(Sketcher.Constraint("Equal", 44, 46))
sketch1.addConstraint(Sketcher.Constraint("Equal", 48, 50))
sketch1.addConstraint(Sketcher.Constraint("Radius", 0, 20.0))
sketch1.addConstraint(Sketcher.Constraint("Diameter", 8, 4.5))
sketch1.addConstraint(Sketcher.Constraint("Diameter", 10, 3.2))
sketch1.addConstraint(Sketcher.Constraint("DistanceX", 1, 2, 1, 1, 340.0))
sketch1.addConstraint(Sketcher.Constraint("DistanceY", 55, 1, 55, 2, 27.548))
sketch1.addConstraint(Sketcher.Constraint("DistanceX", 13, 2, 13, 1, 3.5))
sketch1.addConstraint(Sketcher.Constraint("DistanceX", 26, 1, 26, 2, 4.5))
sketch1.addConstraint(Sketcher.Constraint("DistanceX", -1, 1, 0, 3, 170.0))
sketch1.addConstraint(Sketcher.Constraint("DistanceY", 4, 3, -1, 1, 215.0))
sketch1.addConstraint(Sketcher.Constraint("DistanceX", 8, 3, -1, 1, 180.0))
sketch1.addConstraint(Sketcher.Constraint("DistanceY", 8, 3, -1, 1, 225.0))
sketch1.addConstraint(Sketcher.Constraint("DistanceX", 9, 3, -1, 1, 150.0))
sketch1.addConstraint(Sketcher.Constraint("DistanceX", 12, 3, -1, 1, 70.0))
sketch1.addConstraint(Sketcher.Constraint("DistanceY", 24, 3, -1, 1, 115.0))
sketch1.addConstraint(Sketcher.Constraint("DistanceY", 25, 1, 25, 2, 10.787))
sketch1.addConstraint(Sketcher.Constraint("DistanceX", 13, 2, -1, 1, 170.25))
sketch1.addConstraint(Sketcher.Constraint("DistanceY", 13, 2, -1, 1, 215.25))
sketch1.addConstraint(Sketcher.Constraint("DistanceY", 3, 2, 3, 1, 344.5002))
sketch1.addConstraint(Sketcher.Constraint("DistanceY", 14, 1, 14, 2, 169.4365))
sketch1.addConstraint(Sketcher.Constraint("DistanceX", 10, 3, -1, 1, 154.2377))
sketch1.addConstraint(Sketcher.Constraint("DistanceY", 10, 3, -1, 1, 199.0135))
sketch1.addConstraint(Sketcher.Constraint("DistanceX", 11, 3, -1, 1, 131.3777))
sketch1.addConstraint(Sketcher.Constraint("DistanceX", -1, 1, 17, 3, 0.7023))
sketch1.addConstraint(Sketcher.Constraint("DistanceX", -1, 1, 18, 3, 27.3723))
sketch1.addConstraint(Sketcher.Constraint("DistanceX", -1, 1, 20, 3, 73.0923))
sketch1.addConstraint(Sketcher.Constraint("DistanceX", -1, 1, 21, 3, 95.9523))
sketch1.addConstraint(Sketcher.Constraint("DistanceX", -1, 1, 23, 3, 158.1823))
sketch1.addConstraint(Sketcher.Constraint("DistanceY", 23, 3, -1, 1, 198.9135))
sketch1.addConstraint(Sketcher.Constraint("DistanceY", 29, 3, -1, 1, 41.5335))
sketch1.addConstraint(Sketcher.Constraint("DistanceY", -1, 1, 54, 3, 82.9265))
sketch1.addConstraint(Sketcher.Constraint("DistanceY", -1, 1, 59, 3, 139.5002))
sketch1.addConstraint(Sketcher.Constraint("DistanceX", -1, 1, 63, 3, 23.5623))
sketch1.addConstraint(Sketcher.Constraint("DistanceY", -1, 1, 63, 3, 4.1865))
sketch1.addConstraint(Sketcher.Constraint("DistanceY", -1, 1, 74, 3, 88.0065))
sketch1.addConstraint(Sketcher.Constraint("DistanceY", 25, 2, -1, 1, 30.3562))
sketch1.addConstraint(Sketcher.Constraint("DistanceY", 30, 2, -1, 1, 10.0108))
sketch1.addConstraint(Sketcher.Constraint("DistanceY", -1, 1, 34, 2, 10.6438))
sketch1.addConstraint(Sketcher.Constraint("DistanceY", -1, 1, 38, 2, 30.9892))
sketch1.addConstraint(Sketcher.Constraint("DistanceY", -1, 1, 42, 2, 51.6438))
sketch1.addConstraint(Sketcher.Constraint("DistanceY", -1, 1, 46, 2, 71.9892))
sketch1.addConstraint(Sketcher.Constraint("DistanceY", -1, 1, 50, 2, 92.6438))
sketch1.addConstraint(Sketcher.Constraint("DistanceY", -1, 1, 55, 2, 129.7502))
sketch1.setExpression("Constraints[180]", "Params.sketch1_radius")
sketch1.setExpression("Constraints[181]", "Params.sketch1_diameter")
sketch1.setExpression("Constraints[182]", "Params.sketch1_diameter2")
sketch1.setExpression("Constraints[183]", "Params.sketch1_width")
sketch1.setExpression("Constraints[185]", "Params.sketch1_width2")
pad1 = doc.addObject("PartDesign::Pad", "Pad")
body.addObject(pad1)
pad1.Profile = sketch1
pad1.setExpression("Length", "Params.pad1_length")

doc.recompute()
